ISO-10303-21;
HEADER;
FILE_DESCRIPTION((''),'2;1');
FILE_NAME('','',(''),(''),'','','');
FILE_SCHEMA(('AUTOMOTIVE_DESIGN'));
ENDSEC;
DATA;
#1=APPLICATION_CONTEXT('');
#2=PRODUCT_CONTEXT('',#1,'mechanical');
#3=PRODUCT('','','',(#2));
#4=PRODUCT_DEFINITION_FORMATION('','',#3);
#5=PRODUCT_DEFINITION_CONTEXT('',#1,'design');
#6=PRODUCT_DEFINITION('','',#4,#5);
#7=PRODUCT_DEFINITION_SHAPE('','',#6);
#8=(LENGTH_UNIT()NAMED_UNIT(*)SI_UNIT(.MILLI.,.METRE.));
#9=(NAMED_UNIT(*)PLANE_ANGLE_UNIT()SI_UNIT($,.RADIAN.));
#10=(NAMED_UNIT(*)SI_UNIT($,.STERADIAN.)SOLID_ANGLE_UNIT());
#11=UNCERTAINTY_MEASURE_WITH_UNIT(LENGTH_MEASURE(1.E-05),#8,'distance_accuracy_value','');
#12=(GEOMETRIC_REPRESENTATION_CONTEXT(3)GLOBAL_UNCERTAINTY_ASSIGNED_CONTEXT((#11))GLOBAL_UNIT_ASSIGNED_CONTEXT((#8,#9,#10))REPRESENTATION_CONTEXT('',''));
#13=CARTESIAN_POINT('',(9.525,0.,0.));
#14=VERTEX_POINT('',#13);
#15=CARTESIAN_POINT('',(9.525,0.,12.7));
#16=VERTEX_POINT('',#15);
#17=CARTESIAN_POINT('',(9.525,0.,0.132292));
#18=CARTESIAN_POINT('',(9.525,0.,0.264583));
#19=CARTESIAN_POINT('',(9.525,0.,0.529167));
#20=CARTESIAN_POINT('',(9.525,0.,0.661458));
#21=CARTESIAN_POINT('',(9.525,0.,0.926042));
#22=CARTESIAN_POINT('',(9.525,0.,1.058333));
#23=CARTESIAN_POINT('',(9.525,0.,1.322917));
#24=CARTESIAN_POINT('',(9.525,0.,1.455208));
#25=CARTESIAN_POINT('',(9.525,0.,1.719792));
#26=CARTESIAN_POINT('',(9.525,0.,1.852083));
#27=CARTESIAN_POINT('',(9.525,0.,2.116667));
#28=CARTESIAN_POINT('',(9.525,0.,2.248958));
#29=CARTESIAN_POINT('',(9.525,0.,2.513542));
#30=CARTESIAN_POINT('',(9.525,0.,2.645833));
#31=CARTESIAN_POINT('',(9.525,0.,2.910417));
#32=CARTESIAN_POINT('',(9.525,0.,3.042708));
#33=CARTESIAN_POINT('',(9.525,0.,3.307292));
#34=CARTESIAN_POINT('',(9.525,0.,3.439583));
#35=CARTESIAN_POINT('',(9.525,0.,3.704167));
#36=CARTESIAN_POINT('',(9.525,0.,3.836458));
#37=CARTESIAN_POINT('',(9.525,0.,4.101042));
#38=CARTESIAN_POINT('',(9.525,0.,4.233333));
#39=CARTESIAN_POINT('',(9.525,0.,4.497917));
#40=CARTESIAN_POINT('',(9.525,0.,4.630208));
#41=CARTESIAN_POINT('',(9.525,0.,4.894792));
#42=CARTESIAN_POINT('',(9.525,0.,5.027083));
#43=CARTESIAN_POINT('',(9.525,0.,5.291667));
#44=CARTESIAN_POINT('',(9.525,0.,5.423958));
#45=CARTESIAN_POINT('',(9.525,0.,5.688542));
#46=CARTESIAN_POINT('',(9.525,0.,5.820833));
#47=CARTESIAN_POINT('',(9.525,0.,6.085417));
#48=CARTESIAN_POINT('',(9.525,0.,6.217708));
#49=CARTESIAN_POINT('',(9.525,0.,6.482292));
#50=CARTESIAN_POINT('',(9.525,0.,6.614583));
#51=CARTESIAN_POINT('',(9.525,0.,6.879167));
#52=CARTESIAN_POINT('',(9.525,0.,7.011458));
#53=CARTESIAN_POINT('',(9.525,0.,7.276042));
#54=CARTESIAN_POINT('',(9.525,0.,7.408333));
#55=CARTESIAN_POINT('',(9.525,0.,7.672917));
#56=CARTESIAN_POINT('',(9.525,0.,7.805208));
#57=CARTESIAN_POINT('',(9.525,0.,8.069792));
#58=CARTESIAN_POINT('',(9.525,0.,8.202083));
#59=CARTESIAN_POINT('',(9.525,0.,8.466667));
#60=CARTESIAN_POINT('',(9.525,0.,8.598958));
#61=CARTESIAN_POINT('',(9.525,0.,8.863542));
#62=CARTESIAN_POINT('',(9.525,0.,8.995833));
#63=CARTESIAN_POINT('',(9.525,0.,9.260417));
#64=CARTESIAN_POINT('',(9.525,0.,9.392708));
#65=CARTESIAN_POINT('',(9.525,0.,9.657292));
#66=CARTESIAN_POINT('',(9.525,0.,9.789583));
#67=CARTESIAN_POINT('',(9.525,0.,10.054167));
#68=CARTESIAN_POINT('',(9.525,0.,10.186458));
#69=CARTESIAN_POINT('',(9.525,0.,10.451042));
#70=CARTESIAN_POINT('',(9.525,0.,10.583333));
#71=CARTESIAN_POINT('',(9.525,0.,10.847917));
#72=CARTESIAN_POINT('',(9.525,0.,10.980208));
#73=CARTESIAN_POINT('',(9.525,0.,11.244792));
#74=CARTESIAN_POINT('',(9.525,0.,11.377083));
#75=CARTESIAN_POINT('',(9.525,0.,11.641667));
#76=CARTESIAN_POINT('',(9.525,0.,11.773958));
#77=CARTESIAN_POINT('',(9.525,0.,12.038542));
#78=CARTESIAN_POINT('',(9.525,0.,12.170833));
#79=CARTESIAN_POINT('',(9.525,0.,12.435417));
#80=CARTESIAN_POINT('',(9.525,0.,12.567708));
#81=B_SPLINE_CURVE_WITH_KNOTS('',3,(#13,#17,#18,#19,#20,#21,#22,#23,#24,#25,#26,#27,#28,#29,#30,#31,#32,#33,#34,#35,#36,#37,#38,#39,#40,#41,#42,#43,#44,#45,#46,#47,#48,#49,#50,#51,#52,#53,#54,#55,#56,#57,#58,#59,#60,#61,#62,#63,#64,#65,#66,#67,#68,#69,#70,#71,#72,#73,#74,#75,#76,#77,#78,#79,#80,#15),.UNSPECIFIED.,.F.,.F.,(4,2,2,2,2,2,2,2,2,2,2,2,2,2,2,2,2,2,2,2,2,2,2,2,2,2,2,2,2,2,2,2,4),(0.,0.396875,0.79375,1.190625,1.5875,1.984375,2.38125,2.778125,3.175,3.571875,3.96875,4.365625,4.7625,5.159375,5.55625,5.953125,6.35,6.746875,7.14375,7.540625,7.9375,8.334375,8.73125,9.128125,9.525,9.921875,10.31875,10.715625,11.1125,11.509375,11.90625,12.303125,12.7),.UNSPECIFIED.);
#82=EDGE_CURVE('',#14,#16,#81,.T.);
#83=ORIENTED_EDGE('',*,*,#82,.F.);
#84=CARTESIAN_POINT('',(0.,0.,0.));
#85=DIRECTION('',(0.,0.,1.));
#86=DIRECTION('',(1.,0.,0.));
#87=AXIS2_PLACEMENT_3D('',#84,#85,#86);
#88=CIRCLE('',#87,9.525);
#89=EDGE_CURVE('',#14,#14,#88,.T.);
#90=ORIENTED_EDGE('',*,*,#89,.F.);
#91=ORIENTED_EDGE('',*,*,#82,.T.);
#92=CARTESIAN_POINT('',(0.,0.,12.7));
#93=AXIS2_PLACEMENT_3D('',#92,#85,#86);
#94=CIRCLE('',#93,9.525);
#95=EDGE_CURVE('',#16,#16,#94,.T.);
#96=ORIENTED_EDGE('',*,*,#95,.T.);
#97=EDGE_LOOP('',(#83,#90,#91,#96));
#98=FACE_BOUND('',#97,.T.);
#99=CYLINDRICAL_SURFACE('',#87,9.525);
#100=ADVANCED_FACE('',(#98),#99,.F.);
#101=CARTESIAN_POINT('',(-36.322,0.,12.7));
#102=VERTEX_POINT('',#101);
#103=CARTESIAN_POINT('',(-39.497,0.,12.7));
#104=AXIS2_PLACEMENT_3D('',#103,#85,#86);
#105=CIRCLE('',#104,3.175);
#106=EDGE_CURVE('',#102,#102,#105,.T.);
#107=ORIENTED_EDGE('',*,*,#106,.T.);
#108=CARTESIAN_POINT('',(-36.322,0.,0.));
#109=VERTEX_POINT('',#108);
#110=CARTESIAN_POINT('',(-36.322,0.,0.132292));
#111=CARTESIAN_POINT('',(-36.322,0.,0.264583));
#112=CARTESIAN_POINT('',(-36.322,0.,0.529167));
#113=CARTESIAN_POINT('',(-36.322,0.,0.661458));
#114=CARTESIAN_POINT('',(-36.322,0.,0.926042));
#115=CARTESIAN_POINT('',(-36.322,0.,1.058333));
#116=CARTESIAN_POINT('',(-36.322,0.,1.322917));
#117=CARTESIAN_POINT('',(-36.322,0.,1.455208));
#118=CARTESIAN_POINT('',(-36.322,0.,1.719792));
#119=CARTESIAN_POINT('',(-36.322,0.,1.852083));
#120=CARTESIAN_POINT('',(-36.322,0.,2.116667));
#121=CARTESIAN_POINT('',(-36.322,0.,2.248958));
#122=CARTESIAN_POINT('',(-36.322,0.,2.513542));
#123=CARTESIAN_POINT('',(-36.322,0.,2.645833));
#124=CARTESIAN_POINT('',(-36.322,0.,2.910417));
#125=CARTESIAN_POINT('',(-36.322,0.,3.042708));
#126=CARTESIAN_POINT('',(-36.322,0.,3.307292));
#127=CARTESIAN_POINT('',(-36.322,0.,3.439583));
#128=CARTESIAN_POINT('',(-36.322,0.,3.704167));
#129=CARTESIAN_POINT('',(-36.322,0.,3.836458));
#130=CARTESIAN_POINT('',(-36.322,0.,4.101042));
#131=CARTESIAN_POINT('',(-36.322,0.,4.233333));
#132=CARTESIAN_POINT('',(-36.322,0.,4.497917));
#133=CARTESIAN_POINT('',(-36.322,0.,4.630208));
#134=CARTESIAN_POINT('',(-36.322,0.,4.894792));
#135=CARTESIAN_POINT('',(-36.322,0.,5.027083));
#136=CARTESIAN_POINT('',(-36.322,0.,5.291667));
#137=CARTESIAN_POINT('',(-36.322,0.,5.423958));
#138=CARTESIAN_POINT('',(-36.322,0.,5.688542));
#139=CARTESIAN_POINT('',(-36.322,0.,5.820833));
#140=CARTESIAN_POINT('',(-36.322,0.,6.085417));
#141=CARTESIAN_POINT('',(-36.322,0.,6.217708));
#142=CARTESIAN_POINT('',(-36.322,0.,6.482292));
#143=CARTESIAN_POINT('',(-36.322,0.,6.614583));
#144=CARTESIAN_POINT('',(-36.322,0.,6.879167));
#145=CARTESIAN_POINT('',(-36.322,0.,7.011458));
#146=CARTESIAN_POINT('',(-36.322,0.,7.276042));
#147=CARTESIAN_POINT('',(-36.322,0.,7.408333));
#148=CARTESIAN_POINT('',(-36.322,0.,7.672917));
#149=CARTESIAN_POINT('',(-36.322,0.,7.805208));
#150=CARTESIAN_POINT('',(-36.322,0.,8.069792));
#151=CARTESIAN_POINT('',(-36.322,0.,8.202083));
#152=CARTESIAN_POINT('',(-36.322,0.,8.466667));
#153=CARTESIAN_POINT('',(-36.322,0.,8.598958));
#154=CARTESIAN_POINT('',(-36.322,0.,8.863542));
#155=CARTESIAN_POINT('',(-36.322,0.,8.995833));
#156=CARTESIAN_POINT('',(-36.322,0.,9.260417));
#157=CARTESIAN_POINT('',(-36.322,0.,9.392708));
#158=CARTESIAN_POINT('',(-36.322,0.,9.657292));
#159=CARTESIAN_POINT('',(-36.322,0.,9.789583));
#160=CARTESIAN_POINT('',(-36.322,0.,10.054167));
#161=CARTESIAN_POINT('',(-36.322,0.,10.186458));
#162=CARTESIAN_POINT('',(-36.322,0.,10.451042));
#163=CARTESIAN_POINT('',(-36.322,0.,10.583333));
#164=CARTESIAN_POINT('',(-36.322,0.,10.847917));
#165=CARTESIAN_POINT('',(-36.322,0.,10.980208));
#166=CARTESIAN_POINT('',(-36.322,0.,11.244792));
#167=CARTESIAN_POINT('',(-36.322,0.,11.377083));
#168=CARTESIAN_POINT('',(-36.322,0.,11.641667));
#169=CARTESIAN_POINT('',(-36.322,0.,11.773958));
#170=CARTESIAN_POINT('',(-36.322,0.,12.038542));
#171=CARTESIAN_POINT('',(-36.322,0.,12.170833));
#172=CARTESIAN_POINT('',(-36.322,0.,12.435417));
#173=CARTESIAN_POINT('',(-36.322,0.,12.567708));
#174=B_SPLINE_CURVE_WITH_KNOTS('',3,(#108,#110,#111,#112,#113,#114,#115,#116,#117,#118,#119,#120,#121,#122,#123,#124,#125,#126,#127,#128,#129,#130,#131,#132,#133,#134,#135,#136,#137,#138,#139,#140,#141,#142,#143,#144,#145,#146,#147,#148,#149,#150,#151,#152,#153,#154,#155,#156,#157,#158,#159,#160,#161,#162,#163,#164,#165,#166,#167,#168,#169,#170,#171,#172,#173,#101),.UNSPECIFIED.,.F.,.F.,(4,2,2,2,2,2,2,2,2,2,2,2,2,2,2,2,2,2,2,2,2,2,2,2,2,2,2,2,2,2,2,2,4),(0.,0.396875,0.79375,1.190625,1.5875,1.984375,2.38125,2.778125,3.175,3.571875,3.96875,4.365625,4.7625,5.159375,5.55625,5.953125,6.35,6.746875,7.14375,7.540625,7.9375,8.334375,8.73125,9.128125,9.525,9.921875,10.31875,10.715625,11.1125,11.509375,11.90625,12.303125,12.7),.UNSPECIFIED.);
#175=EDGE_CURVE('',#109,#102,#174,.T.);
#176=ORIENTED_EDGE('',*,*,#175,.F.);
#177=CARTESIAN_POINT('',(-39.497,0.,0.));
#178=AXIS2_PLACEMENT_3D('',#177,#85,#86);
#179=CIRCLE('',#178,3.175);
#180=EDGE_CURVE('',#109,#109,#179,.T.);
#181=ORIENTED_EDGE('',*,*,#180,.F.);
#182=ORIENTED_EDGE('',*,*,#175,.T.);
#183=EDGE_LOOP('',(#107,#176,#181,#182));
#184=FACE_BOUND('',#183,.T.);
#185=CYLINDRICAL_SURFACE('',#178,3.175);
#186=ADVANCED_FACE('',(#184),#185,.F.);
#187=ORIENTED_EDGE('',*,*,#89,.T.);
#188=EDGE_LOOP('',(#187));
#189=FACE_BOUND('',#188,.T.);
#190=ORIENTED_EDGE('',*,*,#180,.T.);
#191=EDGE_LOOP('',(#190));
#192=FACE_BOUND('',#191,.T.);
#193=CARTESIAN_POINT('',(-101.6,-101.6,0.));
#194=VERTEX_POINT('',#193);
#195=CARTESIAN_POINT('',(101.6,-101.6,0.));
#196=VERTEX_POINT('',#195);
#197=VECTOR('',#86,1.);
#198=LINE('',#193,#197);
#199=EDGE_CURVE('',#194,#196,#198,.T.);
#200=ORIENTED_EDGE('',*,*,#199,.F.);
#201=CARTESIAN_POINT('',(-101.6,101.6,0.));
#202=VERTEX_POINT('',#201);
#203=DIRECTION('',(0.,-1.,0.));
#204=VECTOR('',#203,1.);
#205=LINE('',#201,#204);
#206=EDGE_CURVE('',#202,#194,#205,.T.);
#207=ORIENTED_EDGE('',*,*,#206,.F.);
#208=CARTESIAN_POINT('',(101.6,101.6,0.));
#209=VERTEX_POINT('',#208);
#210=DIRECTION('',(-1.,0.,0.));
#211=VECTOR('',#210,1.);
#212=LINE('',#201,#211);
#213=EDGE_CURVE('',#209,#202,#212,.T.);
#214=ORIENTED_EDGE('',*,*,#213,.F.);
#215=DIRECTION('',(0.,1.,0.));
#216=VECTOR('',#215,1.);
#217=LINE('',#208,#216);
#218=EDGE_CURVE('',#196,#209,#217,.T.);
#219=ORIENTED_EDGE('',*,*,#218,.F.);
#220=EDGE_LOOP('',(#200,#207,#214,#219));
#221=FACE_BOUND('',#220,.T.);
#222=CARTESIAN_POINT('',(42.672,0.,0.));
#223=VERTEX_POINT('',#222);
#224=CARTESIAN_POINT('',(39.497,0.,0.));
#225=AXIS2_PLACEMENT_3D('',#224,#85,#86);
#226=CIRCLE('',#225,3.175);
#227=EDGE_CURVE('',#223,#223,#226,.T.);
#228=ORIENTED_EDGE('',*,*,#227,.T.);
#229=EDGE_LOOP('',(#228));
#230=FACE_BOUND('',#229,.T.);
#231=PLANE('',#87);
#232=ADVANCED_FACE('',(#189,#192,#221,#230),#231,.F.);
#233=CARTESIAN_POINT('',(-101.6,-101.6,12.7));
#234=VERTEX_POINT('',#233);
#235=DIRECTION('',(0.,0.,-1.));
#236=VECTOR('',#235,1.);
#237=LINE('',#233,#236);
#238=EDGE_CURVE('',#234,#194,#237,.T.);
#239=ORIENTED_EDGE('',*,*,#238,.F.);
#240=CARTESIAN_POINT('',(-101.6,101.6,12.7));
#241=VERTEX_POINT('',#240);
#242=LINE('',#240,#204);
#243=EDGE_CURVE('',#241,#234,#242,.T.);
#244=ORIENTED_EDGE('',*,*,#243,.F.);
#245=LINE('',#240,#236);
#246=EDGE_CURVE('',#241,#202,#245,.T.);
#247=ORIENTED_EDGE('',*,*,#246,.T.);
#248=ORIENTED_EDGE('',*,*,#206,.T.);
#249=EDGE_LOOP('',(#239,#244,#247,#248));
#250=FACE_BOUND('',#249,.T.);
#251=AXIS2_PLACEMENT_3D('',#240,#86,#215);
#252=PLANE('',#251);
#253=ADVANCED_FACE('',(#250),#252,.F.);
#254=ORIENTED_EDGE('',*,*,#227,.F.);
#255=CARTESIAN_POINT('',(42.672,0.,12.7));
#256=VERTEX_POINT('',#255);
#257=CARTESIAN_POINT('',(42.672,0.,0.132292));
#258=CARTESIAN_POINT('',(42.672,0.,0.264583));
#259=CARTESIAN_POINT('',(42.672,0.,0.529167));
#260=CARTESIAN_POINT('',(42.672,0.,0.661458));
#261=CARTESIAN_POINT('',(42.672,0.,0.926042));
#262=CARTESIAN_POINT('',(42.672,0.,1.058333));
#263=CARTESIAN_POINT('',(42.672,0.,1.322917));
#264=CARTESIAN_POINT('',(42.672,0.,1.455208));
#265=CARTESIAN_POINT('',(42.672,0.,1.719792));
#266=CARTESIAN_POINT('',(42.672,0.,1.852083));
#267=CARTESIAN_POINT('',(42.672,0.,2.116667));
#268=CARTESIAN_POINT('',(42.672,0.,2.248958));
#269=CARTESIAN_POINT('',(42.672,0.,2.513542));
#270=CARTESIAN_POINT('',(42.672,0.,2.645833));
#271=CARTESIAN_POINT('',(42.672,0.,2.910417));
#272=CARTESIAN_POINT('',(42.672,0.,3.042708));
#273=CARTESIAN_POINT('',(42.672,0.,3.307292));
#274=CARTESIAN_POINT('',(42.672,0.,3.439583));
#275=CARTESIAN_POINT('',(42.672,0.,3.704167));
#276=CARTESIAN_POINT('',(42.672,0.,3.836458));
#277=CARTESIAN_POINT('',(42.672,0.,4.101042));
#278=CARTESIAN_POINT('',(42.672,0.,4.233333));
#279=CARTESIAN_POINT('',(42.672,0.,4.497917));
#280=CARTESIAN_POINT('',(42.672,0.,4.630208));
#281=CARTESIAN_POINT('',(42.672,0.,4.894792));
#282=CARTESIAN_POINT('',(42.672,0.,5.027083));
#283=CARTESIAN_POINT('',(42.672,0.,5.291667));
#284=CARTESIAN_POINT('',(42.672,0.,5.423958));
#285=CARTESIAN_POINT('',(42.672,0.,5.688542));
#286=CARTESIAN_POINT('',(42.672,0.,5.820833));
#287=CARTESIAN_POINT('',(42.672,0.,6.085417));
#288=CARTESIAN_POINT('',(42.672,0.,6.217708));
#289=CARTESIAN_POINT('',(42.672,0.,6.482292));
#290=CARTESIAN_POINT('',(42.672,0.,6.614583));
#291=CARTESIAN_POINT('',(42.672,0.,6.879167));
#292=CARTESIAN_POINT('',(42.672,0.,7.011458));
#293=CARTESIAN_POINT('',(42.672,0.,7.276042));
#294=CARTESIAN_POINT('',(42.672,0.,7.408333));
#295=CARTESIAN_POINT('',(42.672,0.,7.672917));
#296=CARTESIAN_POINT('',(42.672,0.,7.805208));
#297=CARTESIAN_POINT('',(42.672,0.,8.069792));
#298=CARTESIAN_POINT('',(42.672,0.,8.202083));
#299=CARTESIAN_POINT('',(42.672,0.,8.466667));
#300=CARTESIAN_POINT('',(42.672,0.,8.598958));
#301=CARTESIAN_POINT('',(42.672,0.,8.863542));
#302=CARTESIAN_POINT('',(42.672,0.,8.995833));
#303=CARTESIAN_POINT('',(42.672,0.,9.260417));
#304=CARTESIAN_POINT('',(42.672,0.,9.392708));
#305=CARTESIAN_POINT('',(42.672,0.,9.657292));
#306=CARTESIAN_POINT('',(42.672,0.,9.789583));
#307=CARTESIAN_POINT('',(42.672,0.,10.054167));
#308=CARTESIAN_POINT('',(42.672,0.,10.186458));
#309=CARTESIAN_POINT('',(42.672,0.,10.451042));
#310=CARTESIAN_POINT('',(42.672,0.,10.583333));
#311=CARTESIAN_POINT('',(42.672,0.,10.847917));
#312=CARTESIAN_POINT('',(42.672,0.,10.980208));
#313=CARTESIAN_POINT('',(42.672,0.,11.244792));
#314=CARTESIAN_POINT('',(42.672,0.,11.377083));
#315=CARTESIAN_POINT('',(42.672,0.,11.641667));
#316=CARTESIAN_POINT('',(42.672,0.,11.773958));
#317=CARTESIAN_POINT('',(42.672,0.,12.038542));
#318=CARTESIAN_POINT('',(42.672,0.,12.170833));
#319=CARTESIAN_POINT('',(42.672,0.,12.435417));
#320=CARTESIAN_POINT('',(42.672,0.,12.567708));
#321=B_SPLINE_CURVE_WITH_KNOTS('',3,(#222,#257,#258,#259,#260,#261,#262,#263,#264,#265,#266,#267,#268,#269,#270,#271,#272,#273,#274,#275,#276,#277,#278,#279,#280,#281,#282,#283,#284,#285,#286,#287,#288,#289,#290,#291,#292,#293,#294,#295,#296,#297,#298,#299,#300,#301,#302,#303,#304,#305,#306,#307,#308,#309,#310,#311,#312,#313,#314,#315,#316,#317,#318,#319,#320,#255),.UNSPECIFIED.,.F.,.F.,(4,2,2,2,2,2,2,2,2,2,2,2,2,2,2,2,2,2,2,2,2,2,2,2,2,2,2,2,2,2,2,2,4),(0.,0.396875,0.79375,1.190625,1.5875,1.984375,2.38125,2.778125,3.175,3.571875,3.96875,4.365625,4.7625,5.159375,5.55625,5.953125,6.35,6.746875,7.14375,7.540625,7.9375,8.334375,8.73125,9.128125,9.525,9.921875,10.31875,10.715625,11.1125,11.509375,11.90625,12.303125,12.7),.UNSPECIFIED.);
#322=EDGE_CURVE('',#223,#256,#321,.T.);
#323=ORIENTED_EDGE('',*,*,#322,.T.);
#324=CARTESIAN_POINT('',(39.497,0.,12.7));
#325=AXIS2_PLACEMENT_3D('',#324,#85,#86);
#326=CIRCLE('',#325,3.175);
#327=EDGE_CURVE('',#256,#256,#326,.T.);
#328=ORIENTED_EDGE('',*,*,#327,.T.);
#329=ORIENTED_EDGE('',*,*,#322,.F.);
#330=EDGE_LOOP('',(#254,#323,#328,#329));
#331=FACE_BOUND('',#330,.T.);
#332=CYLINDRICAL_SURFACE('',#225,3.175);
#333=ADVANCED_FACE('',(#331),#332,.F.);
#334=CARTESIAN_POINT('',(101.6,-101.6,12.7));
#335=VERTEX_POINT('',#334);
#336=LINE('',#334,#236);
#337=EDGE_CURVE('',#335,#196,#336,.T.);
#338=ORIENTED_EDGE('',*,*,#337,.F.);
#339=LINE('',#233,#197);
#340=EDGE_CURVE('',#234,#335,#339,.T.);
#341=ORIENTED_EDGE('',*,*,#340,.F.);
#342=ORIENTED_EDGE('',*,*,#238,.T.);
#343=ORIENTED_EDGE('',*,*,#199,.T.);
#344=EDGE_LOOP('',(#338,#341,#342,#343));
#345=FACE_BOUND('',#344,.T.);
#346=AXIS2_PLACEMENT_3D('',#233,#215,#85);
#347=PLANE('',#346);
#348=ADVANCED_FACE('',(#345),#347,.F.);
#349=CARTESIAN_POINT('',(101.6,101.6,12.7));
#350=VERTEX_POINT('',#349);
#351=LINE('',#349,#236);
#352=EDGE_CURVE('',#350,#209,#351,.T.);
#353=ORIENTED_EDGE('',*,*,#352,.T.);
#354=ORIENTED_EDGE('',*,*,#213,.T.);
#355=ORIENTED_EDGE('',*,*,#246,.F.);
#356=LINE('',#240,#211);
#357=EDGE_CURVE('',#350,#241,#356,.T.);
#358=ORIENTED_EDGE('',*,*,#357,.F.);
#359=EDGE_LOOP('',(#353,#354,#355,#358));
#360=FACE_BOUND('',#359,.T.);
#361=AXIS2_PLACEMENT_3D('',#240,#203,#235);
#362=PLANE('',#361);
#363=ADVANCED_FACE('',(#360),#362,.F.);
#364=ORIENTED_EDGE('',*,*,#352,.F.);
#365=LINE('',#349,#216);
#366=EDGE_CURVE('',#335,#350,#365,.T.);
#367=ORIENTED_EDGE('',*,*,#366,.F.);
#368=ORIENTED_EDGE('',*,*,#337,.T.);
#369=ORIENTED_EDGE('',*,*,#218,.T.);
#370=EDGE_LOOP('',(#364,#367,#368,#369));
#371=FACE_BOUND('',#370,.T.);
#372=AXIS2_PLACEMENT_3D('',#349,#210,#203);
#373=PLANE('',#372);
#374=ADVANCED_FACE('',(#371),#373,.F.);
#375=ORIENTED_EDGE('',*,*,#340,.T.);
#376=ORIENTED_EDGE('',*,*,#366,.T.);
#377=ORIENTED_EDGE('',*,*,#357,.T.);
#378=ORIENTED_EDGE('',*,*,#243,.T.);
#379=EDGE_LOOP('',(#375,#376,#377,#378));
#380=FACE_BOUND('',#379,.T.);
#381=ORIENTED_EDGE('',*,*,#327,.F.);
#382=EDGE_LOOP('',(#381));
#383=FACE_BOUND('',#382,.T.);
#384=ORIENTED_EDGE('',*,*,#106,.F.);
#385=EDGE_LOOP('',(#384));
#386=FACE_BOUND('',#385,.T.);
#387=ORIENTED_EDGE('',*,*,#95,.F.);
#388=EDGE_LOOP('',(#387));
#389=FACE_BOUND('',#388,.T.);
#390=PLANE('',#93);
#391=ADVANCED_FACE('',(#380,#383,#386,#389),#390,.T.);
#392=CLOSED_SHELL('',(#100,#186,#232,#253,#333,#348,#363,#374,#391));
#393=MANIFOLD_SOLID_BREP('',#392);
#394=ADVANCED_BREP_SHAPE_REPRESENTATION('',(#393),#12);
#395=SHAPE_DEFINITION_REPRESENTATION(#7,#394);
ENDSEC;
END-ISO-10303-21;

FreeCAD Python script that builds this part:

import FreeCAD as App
import Part
import Sketcher
Q = App.Units.Quantity


def add_polygon(sketch, points):
    """Adds a closed chain of lines whose ends are joined by coincident constraints."""
    first, n = sketch.GeometryCount, len(points)
    for a, b in zip(points, points[1:] + points[:1]):
        sketch.addGeometry(Part.LineSegment(App.Vector(*a, 0), App.Vector(*b, 0)), False)
    for i in range(n):
        sketch.addConstraint(Sketcher.Constraint("Coincident", first + i, 2, first + (i + 1) % n, 1))

doc = App.newDocument("Part")
body = doc.addObject("PartDesign::Body", "Body")

sketch1 = body.newObject("Sketcher::SketchObject", "Sketch")
sketch1.AttachmentSupport = (doc.getObject("XY_Plane"), [""])
sketch1.MapMode = "FlatFace"
add_polygon(sketch1, [(-101.6, 101.6), (-101.6, -101.6), (101.6, -101.6), (101.6, 101.6)])
sketch1.addConstraint(Sketcher.Constraint("Vertical", 0))
sketch1.addConstraint(Sketcher.Constraint("Horizontal", 1))
sketch1.addConstraint(Sketcher.Constraint("Vertical", 2))
sketch1.addConstraint(Sketcher.Constraint("Horizontal", 3))
sketch1.addConstraint(Sketcher.Constraint("Symmetric", 0, 2, 2, 2, -1, 1))
sketch1.addConstraint(Sketcher.Constraint("Equal", 3, 0))
sketch1.addConstraint(Sketcher.Constraint("DistanceX", 1, 1, 1, 2, Q("8 in")))
pad1 = body.newObject("PartDesign::Pad", "Pad")
pad1.Profile = sketch1
pad1.Length = Q("0.5 in")

sketch2 = body.newObject("Sketcher::SketchObject", "Sketch001")
sketch2.AttachmentSupport = (doc.getObject("XY_Plane"), [""])
sketch2.MapMode = "FlatFace"
sketch2.AttachmentOffset = App.Placement(App.Vector(0, 0, 0.5 * 25.4), App.Rotation())
sketch2.addGeometry(Part.Circle(App.Vector(0, 0, 0), App.Vector(0, 0, 1), 9.525), False)
sketch2.addGeometry(Part.Circle(App.Vector(39.497, 0, 0), App.Vector(0, 0, 1), 3.175), False)
sketch2.addGeometry(Part.Circle(App.Vector(-39.497, 0, 0), App.Vector(0, 0, 1), 3.175), False)
sketch2.addConstraint(Sketcher.Constraint("Coincident", 0, 3, -1, 1))
sketch2.addConstraint(Sketcher.Constraint("Equal", 1, 2))
sketch2.addConstraint(Sketcher.Constraint("Symmetric", 1, 3, 2, 3, -1, 1))
sketch2.addConstraint(Sketcher.Constraint("PointOnObject", 1, 3, -1))
sketch2.addConstraint(Sketcher.Constraint("Diameter", 0, Q("0.75 in")))
sketch2.addConstraint(Sketcher.Constraint("Diameter", 1, Q("0.25 in")))
sketch2.addConstraint(Sketcher.Constraint("DistanceX", 2, 3, 1, 3, Q("3.11 in")))
pocket1 = body.newObject("PartDesign::Pocket", "Pocket")
pocket1.Profile = sketch2
pocket1.Type = "ThroughAll"

doc.recompute()
